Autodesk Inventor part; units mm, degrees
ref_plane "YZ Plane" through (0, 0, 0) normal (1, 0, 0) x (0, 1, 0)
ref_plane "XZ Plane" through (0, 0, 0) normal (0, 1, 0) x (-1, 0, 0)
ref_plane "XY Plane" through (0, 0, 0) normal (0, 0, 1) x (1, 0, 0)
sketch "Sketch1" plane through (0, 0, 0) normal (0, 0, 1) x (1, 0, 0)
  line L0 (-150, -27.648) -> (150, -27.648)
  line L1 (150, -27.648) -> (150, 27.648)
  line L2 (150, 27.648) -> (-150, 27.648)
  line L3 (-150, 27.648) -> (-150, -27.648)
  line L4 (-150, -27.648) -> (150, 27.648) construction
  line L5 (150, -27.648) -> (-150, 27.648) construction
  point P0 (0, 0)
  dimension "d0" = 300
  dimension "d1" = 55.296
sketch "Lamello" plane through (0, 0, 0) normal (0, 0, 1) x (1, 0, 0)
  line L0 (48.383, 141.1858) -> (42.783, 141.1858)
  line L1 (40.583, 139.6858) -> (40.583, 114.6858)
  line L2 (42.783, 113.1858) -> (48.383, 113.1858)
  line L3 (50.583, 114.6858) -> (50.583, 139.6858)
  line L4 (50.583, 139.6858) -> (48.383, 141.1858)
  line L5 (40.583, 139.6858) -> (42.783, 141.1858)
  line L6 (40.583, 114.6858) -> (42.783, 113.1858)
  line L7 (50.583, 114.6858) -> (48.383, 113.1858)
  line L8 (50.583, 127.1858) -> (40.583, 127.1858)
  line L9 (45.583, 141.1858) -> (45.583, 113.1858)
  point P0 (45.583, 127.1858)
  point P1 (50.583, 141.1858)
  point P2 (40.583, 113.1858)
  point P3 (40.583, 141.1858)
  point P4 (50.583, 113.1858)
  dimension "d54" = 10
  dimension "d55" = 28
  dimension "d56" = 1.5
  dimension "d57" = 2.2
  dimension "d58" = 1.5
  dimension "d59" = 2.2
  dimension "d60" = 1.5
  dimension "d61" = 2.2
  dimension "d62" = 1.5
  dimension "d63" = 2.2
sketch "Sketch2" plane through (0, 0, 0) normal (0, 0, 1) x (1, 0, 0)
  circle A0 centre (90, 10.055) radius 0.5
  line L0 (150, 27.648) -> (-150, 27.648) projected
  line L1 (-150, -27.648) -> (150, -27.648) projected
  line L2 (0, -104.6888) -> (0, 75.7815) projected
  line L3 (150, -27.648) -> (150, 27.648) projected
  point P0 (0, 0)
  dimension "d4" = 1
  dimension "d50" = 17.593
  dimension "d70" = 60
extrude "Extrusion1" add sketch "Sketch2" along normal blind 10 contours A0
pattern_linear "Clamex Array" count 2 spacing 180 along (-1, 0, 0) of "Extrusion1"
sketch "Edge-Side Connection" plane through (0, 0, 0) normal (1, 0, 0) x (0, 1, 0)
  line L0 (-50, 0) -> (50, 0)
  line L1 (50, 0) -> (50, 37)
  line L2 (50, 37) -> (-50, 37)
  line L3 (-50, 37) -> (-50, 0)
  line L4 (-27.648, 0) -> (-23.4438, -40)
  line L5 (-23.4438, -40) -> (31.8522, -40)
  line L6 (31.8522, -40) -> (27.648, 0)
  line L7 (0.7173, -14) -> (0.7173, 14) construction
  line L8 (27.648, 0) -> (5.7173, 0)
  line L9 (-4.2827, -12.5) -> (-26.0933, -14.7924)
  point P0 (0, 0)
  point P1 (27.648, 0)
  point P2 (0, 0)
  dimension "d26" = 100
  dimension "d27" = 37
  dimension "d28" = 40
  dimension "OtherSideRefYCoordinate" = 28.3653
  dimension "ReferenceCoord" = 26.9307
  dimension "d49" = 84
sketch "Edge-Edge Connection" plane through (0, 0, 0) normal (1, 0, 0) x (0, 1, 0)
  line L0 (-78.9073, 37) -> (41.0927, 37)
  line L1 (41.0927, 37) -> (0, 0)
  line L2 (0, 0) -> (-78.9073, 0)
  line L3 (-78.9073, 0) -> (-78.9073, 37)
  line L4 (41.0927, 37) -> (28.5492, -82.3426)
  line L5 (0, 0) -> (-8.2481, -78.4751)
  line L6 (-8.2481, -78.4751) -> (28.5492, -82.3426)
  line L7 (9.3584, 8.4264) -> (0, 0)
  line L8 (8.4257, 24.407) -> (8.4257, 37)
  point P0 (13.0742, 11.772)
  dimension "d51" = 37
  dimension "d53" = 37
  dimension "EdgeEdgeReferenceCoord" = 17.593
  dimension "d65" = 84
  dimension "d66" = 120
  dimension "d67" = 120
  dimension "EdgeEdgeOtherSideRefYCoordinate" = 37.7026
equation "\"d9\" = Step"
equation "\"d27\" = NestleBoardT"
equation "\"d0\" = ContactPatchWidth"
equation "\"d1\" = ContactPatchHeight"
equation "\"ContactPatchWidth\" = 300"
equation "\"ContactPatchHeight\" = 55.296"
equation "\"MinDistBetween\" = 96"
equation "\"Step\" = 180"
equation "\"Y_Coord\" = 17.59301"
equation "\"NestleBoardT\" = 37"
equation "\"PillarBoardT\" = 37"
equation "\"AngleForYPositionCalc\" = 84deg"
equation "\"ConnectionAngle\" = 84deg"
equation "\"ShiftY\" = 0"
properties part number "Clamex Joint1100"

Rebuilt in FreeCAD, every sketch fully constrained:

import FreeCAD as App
import Part
import Sketcher
from FreeCAD import Vector

doc = App.newDocument("Part")
body = doc.addObject("PartDesign::Body", "Body")
body.AllowCompound = True

sketch1 = body.newObject("Sketcher::SketchObject", "Sketch")
sketch1.AttachmentSupport = (doc.getObject("XY_Plane"), [""])
sketch1.MapMode = "FlatFace"
sketch1.addGeometry(Part.Circle(Vector(90, 10.055, 0), Vector(0, 0, 1), 0.5), False)
sketch1.addConstraint([
    Sketcher.Constraint("Diameter", 0, 1.0),
    Sketcher.Constraint("DistanceX", -1, 1, 0, 3, 90.0),
    Sketcher.Constraint("DistanceY", -1, 1, 0, 3, 10.055),
])
pad1 = body.newObject("PartDesign::Pad", "Pad")
pad1.Profile = sketch1
pad1.Length = 10
doc.recompute()

linearpattern = body.newObject("PartDesign::LinearPattern", "LinearPattern")
linearpattern.Originals = [pad1]
linearpattern.Direction = (doc.getObject("X_Axis"), [""])
linearpattern.Mode = "offset"
linearpattern.Offset = 180
linearpattern.Occurrences = 2
linearpattern.Reversed = True
body.Tip = linearpattern

doc.recompute()
